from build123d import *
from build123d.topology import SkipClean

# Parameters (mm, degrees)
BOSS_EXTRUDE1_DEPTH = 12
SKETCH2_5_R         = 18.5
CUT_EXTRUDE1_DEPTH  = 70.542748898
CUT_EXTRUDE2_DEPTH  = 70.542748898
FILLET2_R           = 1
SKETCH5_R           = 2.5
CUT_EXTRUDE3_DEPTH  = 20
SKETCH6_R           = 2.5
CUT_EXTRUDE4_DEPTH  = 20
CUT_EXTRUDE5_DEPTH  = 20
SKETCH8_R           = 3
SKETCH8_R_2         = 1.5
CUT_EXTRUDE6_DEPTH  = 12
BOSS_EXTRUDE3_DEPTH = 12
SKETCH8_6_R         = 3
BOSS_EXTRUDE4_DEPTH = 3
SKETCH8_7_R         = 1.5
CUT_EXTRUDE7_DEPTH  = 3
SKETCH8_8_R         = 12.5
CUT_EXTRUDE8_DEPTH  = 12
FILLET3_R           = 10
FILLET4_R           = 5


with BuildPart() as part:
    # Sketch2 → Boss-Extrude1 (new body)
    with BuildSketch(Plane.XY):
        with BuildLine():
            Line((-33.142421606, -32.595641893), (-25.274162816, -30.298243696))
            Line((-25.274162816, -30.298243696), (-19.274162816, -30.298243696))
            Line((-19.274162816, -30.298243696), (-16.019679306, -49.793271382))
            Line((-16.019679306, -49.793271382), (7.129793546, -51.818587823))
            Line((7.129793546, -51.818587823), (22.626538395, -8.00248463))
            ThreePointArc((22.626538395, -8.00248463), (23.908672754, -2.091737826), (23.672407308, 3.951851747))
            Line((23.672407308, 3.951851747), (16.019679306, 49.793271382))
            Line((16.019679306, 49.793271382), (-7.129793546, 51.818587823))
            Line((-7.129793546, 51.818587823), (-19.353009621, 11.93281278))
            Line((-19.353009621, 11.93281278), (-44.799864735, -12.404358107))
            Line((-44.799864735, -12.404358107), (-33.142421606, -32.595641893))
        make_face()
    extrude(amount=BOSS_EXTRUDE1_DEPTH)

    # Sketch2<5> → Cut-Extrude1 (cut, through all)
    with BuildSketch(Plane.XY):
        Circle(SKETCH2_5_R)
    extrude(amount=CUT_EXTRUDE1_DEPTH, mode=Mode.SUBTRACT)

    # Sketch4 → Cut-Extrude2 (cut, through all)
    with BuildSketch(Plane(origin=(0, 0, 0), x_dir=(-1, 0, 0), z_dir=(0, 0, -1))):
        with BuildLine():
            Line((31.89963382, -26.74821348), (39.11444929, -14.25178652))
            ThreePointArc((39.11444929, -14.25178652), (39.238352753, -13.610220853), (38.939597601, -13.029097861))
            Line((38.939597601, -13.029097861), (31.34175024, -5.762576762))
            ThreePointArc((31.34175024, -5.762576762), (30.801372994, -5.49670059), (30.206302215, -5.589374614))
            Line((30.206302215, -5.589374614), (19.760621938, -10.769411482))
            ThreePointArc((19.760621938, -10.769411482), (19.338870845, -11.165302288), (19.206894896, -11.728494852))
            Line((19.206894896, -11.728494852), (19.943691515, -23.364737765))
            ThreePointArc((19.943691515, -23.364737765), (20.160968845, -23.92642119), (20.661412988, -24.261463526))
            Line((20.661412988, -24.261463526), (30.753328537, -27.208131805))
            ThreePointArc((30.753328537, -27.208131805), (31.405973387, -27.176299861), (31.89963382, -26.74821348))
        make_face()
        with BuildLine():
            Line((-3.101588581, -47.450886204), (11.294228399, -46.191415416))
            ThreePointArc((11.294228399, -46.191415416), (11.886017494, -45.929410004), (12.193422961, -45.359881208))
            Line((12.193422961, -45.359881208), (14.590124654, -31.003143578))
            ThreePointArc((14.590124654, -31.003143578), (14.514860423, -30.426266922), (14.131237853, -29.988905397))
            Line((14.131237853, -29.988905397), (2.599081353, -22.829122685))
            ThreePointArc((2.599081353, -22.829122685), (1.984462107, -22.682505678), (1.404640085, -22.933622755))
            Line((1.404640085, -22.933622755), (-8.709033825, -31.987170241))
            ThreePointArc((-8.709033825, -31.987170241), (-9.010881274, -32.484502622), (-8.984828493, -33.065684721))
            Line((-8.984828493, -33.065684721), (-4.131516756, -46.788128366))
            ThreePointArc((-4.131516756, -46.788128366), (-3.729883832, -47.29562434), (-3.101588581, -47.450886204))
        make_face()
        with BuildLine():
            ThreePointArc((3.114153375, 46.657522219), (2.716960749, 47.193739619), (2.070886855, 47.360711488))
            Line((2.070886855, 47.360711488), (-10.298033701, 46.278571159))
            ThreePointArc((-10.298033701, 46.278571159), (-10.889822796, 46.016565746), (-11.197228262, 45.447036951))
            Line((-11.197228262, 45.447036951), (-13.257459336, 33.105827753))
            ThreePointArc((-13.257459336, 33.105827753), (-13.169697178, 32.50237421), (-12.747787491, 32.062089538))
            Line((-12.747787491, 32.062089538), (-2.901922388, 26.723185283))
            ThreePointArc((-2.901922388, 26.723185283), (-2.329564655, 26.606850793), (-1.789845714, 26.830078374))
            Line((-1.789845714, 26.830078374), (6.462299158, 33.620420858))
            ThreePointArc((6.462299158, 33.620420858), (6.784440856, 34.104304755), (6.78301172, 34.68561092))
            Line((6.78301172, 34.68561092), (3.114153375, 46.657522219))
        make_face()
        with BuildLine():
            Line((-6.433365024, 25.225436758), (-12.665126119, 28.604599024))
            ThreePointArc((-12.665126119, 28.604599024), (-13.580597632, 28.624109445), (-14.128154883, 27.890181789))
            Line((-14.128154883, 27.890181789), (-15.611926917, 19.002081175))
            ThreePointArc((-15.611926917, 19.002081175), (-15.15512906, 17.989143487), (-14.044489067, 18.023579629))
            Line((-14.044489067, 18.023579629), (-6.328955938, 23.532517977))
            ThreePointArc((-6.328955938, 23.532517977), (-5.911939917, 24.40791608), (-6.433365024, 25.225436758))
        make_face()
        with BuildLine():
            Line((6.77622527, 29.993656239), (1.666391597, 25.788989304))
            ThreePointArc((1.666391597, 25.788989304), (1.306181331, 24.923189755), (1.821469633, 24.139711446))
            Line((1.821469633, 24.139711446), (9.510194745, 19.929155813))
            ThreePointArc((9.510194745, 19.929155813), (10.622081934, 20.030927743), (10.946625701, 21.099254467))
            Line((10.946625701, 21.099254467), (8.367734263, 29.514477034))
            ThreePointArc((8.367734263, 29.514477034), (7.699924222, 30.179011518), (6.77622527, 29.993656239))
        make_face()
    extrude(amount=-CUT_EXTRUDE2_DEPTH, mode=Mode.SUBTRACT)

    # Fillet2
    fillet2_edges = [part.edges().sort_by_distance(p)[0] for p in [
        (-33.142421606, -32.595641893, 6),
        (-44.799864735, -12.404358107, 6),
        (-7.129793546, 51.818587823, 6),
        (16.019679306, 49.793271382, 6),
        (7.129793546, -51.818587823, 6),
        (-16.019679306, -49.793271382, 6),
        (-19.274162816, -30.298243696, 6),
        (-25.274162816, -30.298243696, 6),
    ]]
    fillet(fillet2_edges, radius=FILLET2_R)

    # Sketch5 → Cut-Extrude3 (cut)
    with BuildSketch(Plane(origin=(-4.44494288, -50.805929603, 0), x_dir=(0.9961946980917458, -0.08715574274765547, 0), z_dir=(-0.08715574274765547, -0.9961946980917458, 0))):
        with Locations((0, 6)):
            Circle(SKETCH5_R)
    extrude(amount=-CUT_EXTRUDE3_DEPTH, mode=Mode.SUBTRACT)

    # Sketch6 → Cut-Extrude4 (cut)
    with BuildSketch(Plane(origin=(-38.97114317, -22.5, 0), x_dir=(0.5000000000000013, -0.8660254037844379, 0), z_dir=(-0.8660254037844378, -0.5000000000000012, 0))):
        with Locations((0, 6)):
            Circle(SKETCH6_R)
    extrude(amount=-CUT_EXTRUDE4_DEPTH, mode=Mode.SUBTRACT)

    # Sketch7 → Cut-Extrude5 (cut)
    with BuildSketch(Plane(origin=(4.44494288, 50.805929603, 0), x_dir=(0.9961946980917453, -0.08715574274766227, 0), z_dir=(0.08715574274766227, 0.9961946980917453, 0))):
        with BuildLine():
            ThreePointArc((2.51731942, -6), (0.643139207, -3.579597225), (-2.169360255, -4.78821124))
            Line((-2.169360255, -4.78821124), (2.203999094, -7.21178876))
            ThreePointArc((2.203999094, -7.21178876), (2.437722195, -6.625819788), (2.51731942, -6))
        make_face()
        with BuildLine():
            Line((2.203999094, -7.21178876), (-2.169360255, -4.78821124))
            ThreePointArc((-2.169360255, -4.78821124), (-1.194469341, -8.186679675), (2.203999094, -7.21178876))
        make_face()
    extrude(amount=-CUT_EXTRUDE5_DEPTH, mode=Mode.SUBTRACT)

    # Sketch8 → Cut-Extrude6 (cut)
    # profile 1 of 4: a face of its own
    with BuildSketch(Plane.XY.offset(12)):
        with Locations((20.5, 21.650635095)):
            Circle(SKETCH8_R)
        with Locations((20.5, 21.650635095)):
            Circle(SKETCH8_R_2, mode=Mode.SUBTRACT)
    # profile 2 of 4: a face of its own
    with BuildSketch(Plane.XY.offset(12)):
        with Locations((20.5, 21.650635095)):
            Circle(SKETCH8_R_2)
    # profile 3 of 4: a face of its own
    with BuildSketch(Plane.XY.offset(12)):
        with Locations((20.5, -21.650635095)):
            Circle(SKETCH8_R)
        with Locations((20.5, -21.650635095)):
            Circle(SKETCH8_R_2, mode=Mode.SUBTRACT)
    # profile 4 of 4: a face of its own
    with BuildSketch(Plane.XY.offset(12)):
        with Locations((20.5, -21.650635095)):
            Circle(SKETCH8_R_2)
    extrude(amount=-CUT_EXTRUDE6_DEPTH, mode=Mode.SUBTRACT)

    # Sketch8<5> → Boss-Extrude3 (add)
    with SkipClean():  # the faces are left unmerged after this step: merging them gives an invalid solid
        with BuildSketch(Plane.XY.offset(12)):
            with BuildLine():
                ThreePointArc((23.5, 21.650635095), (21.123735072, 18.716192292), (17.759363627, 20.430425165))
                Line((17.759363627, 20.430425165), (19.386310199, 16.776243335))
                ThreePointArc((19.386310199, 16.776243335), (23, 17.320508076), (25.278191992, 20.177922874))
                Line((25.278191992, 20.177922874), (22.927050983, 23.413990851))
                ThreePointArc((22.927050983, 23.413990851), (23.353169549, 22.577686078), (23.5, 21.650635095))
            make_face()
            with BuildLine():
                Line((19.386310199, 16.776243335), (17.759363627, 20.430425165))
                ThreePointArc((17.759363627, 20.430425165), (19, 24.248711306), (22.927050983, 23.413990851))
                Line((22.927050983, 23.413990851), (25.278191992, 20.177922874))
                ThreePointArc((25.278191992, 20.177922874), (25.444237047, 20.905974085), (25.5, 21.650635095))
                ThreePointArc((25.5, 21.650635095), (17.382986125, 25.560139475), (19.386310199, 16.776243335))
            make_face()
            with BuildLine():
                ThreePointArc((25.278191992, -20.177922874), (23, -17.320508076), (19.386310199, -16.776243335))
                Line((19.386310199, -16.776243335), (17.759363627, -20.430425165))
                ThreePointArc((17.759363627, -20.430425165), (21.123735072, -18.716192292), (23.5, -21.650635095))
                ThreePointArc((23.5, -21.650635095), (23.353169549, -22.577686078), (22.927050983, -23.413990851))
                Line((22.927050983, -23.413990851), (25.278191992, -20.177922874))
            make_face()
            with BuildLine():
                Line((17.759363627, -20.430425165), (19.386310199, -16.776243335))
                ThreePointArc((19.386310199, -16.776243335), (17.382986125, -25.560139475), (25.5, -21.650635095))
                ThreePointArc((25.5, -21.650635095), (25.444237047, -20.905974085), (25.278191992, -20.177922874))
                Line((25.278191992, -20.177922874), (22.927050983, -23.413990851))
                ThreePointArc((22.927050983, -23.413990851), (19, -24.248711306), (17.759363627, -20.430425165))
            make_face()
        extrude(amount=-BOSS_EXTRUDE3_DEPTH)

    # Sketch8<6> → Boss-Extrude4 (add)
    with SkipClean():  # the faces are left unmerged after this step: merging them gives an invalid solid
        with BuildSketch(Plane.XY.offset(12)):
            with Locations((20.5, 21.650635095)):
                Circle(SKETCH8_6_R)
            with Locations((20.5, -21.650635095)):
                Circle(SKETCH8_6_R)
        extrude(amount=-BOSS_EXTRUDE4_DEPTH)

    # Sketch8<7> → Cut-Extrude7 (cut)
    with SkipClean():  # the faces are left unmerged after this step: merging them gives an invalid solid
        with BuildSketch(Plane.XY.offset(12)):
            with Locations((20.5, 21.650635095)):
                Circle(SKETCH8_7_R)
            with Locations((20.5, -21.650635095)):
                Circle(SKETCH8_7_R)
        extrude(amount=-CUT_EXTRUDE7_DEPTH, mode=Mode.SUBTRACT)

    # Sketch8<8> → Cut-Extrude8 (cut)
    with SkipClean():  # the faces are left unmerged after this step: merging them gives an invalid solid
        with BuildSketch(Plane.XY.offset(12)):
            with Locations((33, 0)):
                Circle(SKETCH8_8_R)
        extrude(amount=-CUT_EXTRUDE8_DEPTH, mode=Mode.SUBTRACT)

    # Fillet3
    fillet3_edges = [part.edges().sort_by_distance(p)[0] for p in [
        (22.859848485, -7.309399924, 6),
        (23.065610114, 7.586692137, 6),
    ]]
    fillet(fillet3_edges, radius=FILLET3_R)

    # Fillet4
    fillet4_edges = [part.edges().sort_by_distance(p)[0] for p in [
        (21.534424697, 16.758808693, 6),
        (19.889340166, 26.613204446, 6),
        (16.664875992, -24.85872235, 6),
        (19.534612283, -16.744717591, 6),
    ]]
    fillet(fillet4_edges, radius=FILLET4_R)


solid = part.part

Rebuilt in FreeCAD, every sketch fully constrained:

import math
import FreeCAD as App
import Part
import Sketcher

V = App.Vector
Q = App.Units.Quantity


def edges_at(feature, points):
    """Names of the edges that pass closest to the given points."""
    edges = feature.Shape.Edges
    near = lambda p: min(range(len(edges)), key=lambda i: edges[i].distToShape(Part.Vertex(*p))[0])
    return sorted({f"Edge{near(p) + 1}" for p in points})

doc = App.newDocument("Part")
body = doc.addObject("PartDesign::Body", "Body")

# Sketch on XY plane
sketch1 = doc.addObject("Sketcher::SketchObject", "Sketch")
body.addObject(sketch1)
sketch1.AttachmentSupport = (doc.XY_Plane, [""])
sketch1.MapMode = "FlatFace"
sketch1.addGeometry([
    Part.LineSegment(V(-33, -33, 0), V(-25, -30, 0)),  # 0
    Part.LineSegment(V(-25, -30, 0), V(-19, -30, 0)),  # 1
    Part.LineSegment(V(-19, -30, 0), V(-16, -50, 0)),  # 2
    Part.LineSegment(V(-16, -50, 0), V(7, -52, 0)),  # 3
    Part.LineSegment(V(7, -52, 0), V(23, -8, 0)),  # 4
    Part.ArcOfCircle(Part.Circle(V(0, 0, 0), V(0, 0, 1), 24), math.radians(-19), math.radians(9)),  # 5
    Part.LineSegment(V(24, 4, 0), V(16, 50, 0)),  # 6
    Part.LineSegment(V(16, 50, 0), V(-7, 52, 0)),  # 7
    Part.LineSegment(V(-7, 52, 0), V(-19, 12, 0)),  # 8
    Part.LineSegment(V(-19, 12, 0), V(-45, -12, 0)),  # 9
    Part.LineSegment(V(-45, -12, 0), V(-33, -33, 0)),  # 10
], False)
sketch1.addConstraint([
    Sketcher.Constraint("Coincident", 0, 2, 1, 1),
    Sketcher.Constraint("Coincident", 1, 2, 2, 1),
    Sketcher.Constraint("Coincident", 2, 2, 3, 1),
    Sketcher.Constraint("Coincident", 3, 2, 4, 1),
    Sketcher.Constraint("Tangent", 4, 2, 5, 1),
    Sketcher.Constraint("Tangent", 5, 2, 6, 1),
    Sketcher.Constraint("Coincident", 6, 2, 7, 1),
    Sketcher.Constraint("Coincident", 7, 2, 8, 1),
    Sketcher.Constraint("Coincident", 8, 2, 9, 1),
    Sketcher.Constraint("Coincident", 9, 2, 10, 1),
    Sketcher.Constraint("Coincident", 10, 2, 0, 1),
    Sketcher.Constraint("Horizontal", 1),
    Sketcher.Constraint("Coincident", 5, 3, -1, 1),
    Sketcher.Constraint("Symmetric", 2, 2, 6, 2, -1, 1),
    Sketcher.Constraint("Symmetric", 3, 2, 7, 2, -1, 1),
    Sketcher.Constraint("Parallel", 2, 6),
    Sketcher.Constraint("Equal", 4, 6),
    Sketcher.Constraint("Radius", 5, Q("24 mm")),
    Sketcher.Constraint("DistanceX", 1, 1, 1, 2, Q("6 mm")),
    Sketcher.Constraint("Angle", 3, Q("-5 deg")),
    Sketcher.Constraint("Angle", 10, Q("-60 deg")),
    Sketcher.Constraint("Distance", 0, Q("8.1968 mm")),
    Sketcher.Constraint("Distance", 3, Q("23.2379 mm")),
    Sketcher.Constraint("Distance", 4, Q("46.4758 mm")),
    Sketcher.Constraint("DistanceX", 1, 2, 4, 2, Q("41.900701 mm")),
    Sketcher.Constraint("DistanceX", 9, 2, 0, 2, Q("19.525702 mm")),
    Sketcher.Constraint("DistanceY", 10, 2, 0, 2, Q("2.297398 mm")),
    Sketcher.Constraint("Distance", 8, Q("41.716688 mm")),
    Sketcher.Constraint("DistanceX", 8, 2, -1, 1, Q("19.35301 mm")),
])
pad1 = doc.addObject("PartDesign::Pad", "Pad")
body.addObject(pad1)
pad1.Profile = sketch1
pad1.Length = 12

# Sketch on XY plane
sketch2 = doc.addObject("Sketcher::SketchObject", "Sketch001")
body.addObject(sketch2)
sketch2.AttachmentSupport = (doc.XY_Plane, [""])
sketch2.MapMode = "FlatFace"
sketch2.addGeometry(Part.Circle(V(0, 0, 0), V(0, 0, 1), 18), False)
sketch2.addConstraint([
    Sketcher.Constraint("Coincident", 0, 3, -1, 1),
    Sketcher.Constraint("Diameter", 0, Q("37 mm")),
])
pocket1 = doc.addObject("PartDesign::Pocket", "Pocket")
body.addObject(pocket1)
pocket1.Profile = sketch2
pocket1.Type = "ThroughAll"
pocket1.Reversed = True

# Sketch on XY plane
sketch3 = doc.addObject("Sketcher::SketchObject", "Sketch002")
body.addObject(sketch3)
sketch3.AttachmentSupport = (doc.XY_Plane, [""])
sketch3.MapMode = "FlatFace"
sketch3.addGeometry([
    Part.LineSegment(V(-31.9, -26.7, 0), V(-39.1, -14.3, 0)),  # 0
    Part.ArcOfCircle(Part.Circle(V(-38.2, -13.8, 0), V(0, 0, 1), 1), math.radians(134), math.radians(210)),  # 1
    Part.LineSegment(V(-38.9, -13, 0), V(-31.3, -5.8, 0)),  # 2
    Part.ArcOfCircle(Part.Circle(V(-30.7, -6.5, 0), V(0, 0, 1), 1), math.radians(64), math.radians(134)),  # 3
    Part.LineSegment(V(-30.2, -5.6, 0), V(-19.8, -10.8, 0)),  # 4
    Part.ArcOfCircle(Part.Circle(V(-20.2, -11.7, 0), V(0, 0, 1), 1), math.radians(-4), math.radians(64)),  # 5
    Part.LineSegment(V(-19.2, -11.7, 0), V(-19.9, -23.4, 0)),  # 6
    Part.ArcOfCircle(Part.Circle(V(-20.9, -23.3, 0), V(0, 0, 1), 1), math.radians(-74), math.radians(-4)),  # 7
    Part.LineSegment(V(-20.7, -24.3, 0), V(-30.8, -27.2, 0)),  # 8
    Part.ArcOfCircle(Part.Circle(V(-31, -26.2, 0), V(0, 0, 1), 1), math.radians(-150), math.radians(-74)),  # 9
    Part.LineSegment(V(3.1, -47.5, 0), V(-11.3, -46.2, 0)),  # 10
    Part.ArcOfCircle(Part.Circle(V(-11.2, -45.2, 0), V(0, 0, 1), 1), math.radians(-171), math.radians(-95)),  # 11
    Part.LineSegment(V(-12.2, -45.4, 0), V(-14.6, -31, 0)),  # 12
    Part.ArcOfCircle(Part.Circle(V(-13.6, -30.8, 0), V(0, 0, 1), 1), math.radians(122), math.radians(189)),  # 13
    Part.LineSegment(V(-14.1, -30, 0), V(-2.6, -22.8, 0)),  # 14
    Part.ArcOfCircle(Part.Circle(V(-2.1, -23.7, 0), V(0, 0, 1), 1), math.radians(48), math.radians(122)),  # 15
    Part.LineSegment(V(-1.4, -22.9, 0), V(8.7, -32, 0)),  # 16
    Part.ArcOfCircle(Part.Circle(V(8, -32.7, 0), V(0, 0, 1), 1), math.radians(-19), math.radians(48)),  # 17
    Part.LineSegment(V(9, -33.1, 0), V(4.1, -46.8, 0)),  # 18
    Part.ArcOfCircle(Part.Circle(V(3.2, -46.5, 0), V(0, 0, 1), 1), math.radians(-95), math.radians(-19)),  # 19
    Part.ArcOfCircle(Part.Circle(V(-2.2, 46.4, 0), V(0, 0, 1), 1), math.radians(85), math.radians(163)),  # 20
    Part.LineSegment(V(-2.1, 47.4, 0), V(10.3, 46.3, 0)),  # 21
    Part.ArcOfCircle(Part.Circle(V(10.2, 45.3, 0), V(0, 0, 1), 1), math.radians(9), math.radians(85)),  # 22
    Part.LineSegment(V(11.2, 45.4, 0), V(13.3, 33.1, 0)),  # 23
    Part.ArcOfCircle(Part.Circle(V(12.3, 32.9, 0), V(0, 0, 1), 1), math.radians(-62), math.radians(9)),  # 24
    Part.LineSegment(V(12.7, 32.1, 0), V(2.9, 26.7, 0)),  # 25
    Part.ArcOfCircle(Part.Circle(V(2.4, 27.6, 0), V(0, 0, 1), 1), math.radians(-129), math.radians(-62)),  # 26
    Part.LineSegment(V(1.8, 26.8, 0), V(-6.5, 33.6, 0)),  # 27
    Part.ArcOfCircle(Part.Circle(V(-5.8, 34.4, 0), V(0, 0, 1), 1), math.radians(163), math.radians(231)),  # 28
    Part.LineSegment(V(-6.8, 34.7, 0), V(-3.1, 46.7, 0)),  # 29
    Part.LineSegment(V(6.4, 25.2, 0), V(12.7, 28.6, 0)),  # 30
    Part.ArcOfCircle(Part.Circle(V(13.1, 27.7, 0), V(0, 0, 1), 1), math.radians(9), math.radians(118)),  # 31
    Part.LineSegment(V(14.1, 27.9, 0), V(15.6, 19, 0)),  # 32
    Part.ArcOfCircle(Part.Circle(V(14.6, 18.8, 0), V(0, 0, 1), 1), math.radians(-126), math.radians(9)),  # 33
    Part.LineSegment(V(14, 18, 0), V(6.3, 23.5, 0)),  # 34
    Part.ArcOfCircle(Part.Circle(V(6.9, 24.3, 0), V(0, 0, 1), 1), math.radians(118), math.radians(234)),  # 35
    Part.LineSegment(V(-6.8, 30, 0), V(-1.7, 25.8, 0)),  # 36
    Part.ArcOfCircle(Part.Circle(V(-2.3, 25, 0), V(0, 0, 1), 1), math.radians(-61), math.radians(51)),  # 37
    Part.LineSegment(V(-1.8, 24.1, 0), V(-9.5, 19.9, 0)),  # 38
    Part.ArcOfCircle(Part.Circle(V(-10, 20.8, 0), V(0, 0, 1), 1), math.radians(163), math.radians(299)),  # 39
    Part.LineSegment(V(-10.9, 21.1, 0), V(-8.4, 29.5, 0)),  # 40
    Part.ArcOfCircle(Part.Circle(V(-7.4, 29.2, 0), V(0, 0, 1), 1), math.radians(51), math.radians(163)),  # 41
], False)
sketch3.addConstraint([
    Sketcher.Constraint("Tangent", 0, 2, 1, 2),
    Sketcher.Constraint("Tangent", 1, 1, 2, 1),
    Sketcher.Constraint("Tangent", 2, 2, 3, 2),
    Sketcher.Constraint("Tangent", 3, 1, 4, 1),
    Sketcher.Constraint("Tangent", 4, 2, 5, 2),
    Sketcher.Constraint("Tangent", 5, 1, 6, 1),
    Sketcher.Constraint("Tangent", 6, 2, 7, 2),
    Sketcher.Constraint("Tangent", 7, 1, 8, 1),
    Sketcher.Constraint("Tangent", 8, 2, 9, 2),
    Sketcher.Constraint("Tangent", 9, 1, 0, 1),
    Sketcher.Constraint("Tangent", 10, 2, 11, 2),
    Sketcher.Constraint("Tangent", 11, 1, 12, 1),
    Sketcher.Constraint("Tangent", 12, 2, 13, 2),
    Sketcher.Constraint("Tangent", 13, 1, 14, 1),
    Sketcher.Constraint("Tangent", 14, 2, 15, 2),
    Sketcher.Constraint("Tangent", 15, 1, 16, 1),
    Sketcher.Constraint("Tangent", 16, 2, 17, 2),
    Sketcher.Constraint("Tangent", 17, 1, 18, 1),
    Sketcher.Constraint("Tangent", 18, 2, 19, 2),
    Sketcher.Constraint("Tangent", 19, 1, 10, 1),
    Sketcher.Constraint("Tangent", 20, 1, 21, 1),
    Sketcher.Constraint("Tangent", 21, 2, 22, 2),
    Sketcher.Constraint("Tangent", 22, 1, 23, 1),
    Sketcher.Constraint("Tangent", 23, 2, 24, 2),
    Sketcher.Constraint("Tangent", 24, 1, 25, 1),
    Sketcher.Constraint("Tangent", 25, 2, 26, 2),
    Sketcher.Constraint("Tangent", 26, 1, 27, 1),
    Sketcher.Constraint("Tangent", 27, 2, 28, 2),
    Sketcher.Constraint("Tangent", 28, 1, 29, 1),
    Sketcher.Constraint("Tangent", 29, 2, 20, 2),
    Sketcher.Constraint("Tangent", 30, 2, 31, 2),
    Sketcher.Constraint("Tangent", 31, 1, 32, 1),
    Sketcher.Constraint("Tangent", 32, 2, 33, 2),
    Sketcher.Constraint("Tangent", 33, 1, 34, 1),
    Sketcher.Constraint("Tangent", 34, 2, 35, 2),
    Sketcher.Constraint("Tangent", 35, 1, 30, 1),
    Sketcher.Constraint("Tangent", 36, 2, 37, 2),
    Sketcher.Constraint("Tangent", 37, 1, 38, 1),
    Sketcher.Constraint("Tangent", 38, 2, 39, 2),
    Sketcher.Constraint("Tangent", 39, 1, 40, 1),
    Sketcher.Constraint("Tangent", 40, 2, 41, 2),
    Sketcher.Constraint("Tangent", 41, 1, 36, 1),
    Sketcher.Constraint("Equal", 1, 3),
    Sketcher.Constraint("Equal", 3, 5),
    Sketcher.Constraint("Equal", 5, 7),
    Sketcher.Constraint("Equal", 7, 9),
    Sketcher.Constraint("Equal", 9, 11),
    Sketcher.Constraint("Equal", 11, 13),
    Sketcher.Constraint("Equal", 13, 15),
    Sketcher.Constraint("Equal", 15, 17),
    Sketcher.Constraint("Equal", 17, 19),
    Sketcher.Constraint("Equal", 19, 20),
    Sketcher.Constraint("Equal", 20, 22),
    Sketcher.Constraint("Equal", 22, 24),
    Sketcher.Constraint("Equal", 24, 26),
    Sketcher.Constraint("Equal", 26, 28),
    Sketcher.Constraint("Equal", 28, 31),
    Sketcher.Constraint("Equal", 31, 33),
    Sketcher.Constraint("Equal", 33, 35),
    Sketcher.Constraint("Equal", 35, 37),
    Sketcher.Constraint("Equal", 37, 39),
    Sketcher.Constraint("Equal", 39, 41),
    Sketcher.Constraint("Parallel", 10, 21),
    Sketcher.Constraint("Parallel", 12, 23),
    Sketcher.Constraint("Parallel", 25, 30),
    Sketcher.Constraint("Parallel", 23, 32),
    Sketcher.Constraint("Parallel", 27, 36),
    Sketcher.Constraint("Parallel", 29, 40),
    Sketcher.Constraint("Equal", 4, 6),
    Sketcher.Constraint("Equal", 2, 8),
    Sketcher.Constraint("Equal", 14, 16),
    Sketcher.Constraint("Equal", 12, 18),
    Sketcher.Constraint("Radius", 1, Q("1 mm")),
    Sketcher.Constraint("Angle", 0, Q("120 deg")),
    Sketcher.Constraint("Angle", 10, Q("175 deg")),
    Sketcher.Constraint("Distance", 32, Q("9.011099 mm")),
    Sketcher.Constraint("DistanceY", 15, 3, -1, 1, Q("23.6787 mm")),
    Sketcher.Constraint("DistanceX", 28, 3, -1, 1, Q("5.826901 mm")),
    Sketcher.Constraint("DistanceX", 27, 2, -1, 1, Q("6.462299 mm")),
    Sketcher.Constraint("DistanceY", -1, 1, 30, 2, Q("28.604599 mm")),
    Sketcher.Constraint("Distance", 0, Q("14.429631 mm")),
    Sketcher.Constraint("Distance", 25, Q("11.200221 mm")),
    Sketcher.Constraint("Distance", 27, Q("10.686751 mm")),
    Sketcher.Constraint("Distance", 29, Q("12.521469 mm")),
    Sketcher.Constraint("DistanceX", 9, 3, -1, 1, Q("31.033608 mm")),
    Sketcher.Constraint("DistanceY", 11, 3, -1, 1, Q("45.195221 mm")),
    Sketcher.Constraint("DistanceY", 19, 3, -1, 1, Q("46.454692 mm")),
    Sketcher.Constraint("DistanceX", -1, 1, 24, 3, Q("12.271109 mm")),
    Sketcher.Constraint("DistanceY", -1, 1, 33, 3, Q("18.837421 mm")),
    Sketcher.Constraint("DistanceY", -1, 1, 35, 3, Q("24.346359 mm")),
    Sketcher.Constraint("DistanceX", 37, 3, -1, 1, Q("2.30179 mm")),
    Sketcher.Constraint("DistanceY", -1, 1, 39, 3, Q("20.806249 mm")),
    Sketcher.Constraint("DistanceY", -1, 1, 41, 3, Q("29.221472 mm")),
    Sketcher.Constraint("DistanceX", 2, 2, -1, 1, Q("31.34175 mm")),
    Sketcher.Constraint("DistanceX", 4, 2, -1, 1, Q("19.760622 mm")),
    Sketcher.Constraint("DistanceY", 4, 2, -1, 1, Q("10.769411 mm")),
    Sketcher.Constraint("DistanceX", 6, 2, -1, 1, Q("19.943692 mm")),
    Sketcher.Constraint("DistanceX", 8, 2, -1, 1, Q("30.753329 mm")),
    Sketcher.Constraint("DistanceX", 10, 2, -1, 1, Q("11.294228 mm")),
    Sketcher.Constraint("DistanceX", 14, 2, -1, 1, Q("2.599081 mm")),
    Sketcher.Constraint("DistanceX", 15, 1, -1, 1, Q("1.40464 mm")),
    Sketcher.Constraint("DistanceY", -1, 1, 20, 1, Q("47.360711 mm")),
    Sketcher.Constraint("DistanceY", -1, 1, 21, 2, Q("46.278571 mm")),
    Sketcher.Constraint("DistanceX", -1, 1, 33, 1, Q("14.044489 mm")),
    Sketcher.Constraint("DistanceY", -1, 1, 36, 2, Q("25.788989 mm")),
])
pocket2 = doc.addObject("PartDesign::Pocket", "Pocket001")
body.addObject(pocket2)
pocket2.Profile = sketch3
pocket2.Type = "ThroughAll"
pocket2.Reversed = True
doc.recompute()

fillet = doc.addObject("PartDesign::Fillet", "Fillet")
body.addObject(fillet)
fillet.Base = (pocket2, edges_at(pocket2, [
    (-33.142, -32.596, 6),
    (-44.8, -12.404, 6),
    (-7.13, 51.819, 6),
    (16.02, 49.793, 6),
    (7.13, -51.819, 6),
    (-16.02, -49.793, 6),
    (-19.274, -30.298, 6),
    (-25.274, -30.298, 6),
]))
fillet.Radius = 1

# Sketch on an angled plane
sketch4 = doc.addObject("Sketcher::SketchObject", "Sketch003")
body.addObject(sketch4)
sketch4.Placement = App.Placement(V(-4.444943, -50.80593, 0), App.Rotation(V(0.996194698, -0.087155743, 0), V(0, 0, 1), V(-0.087155743, -0.996194698, 0), "ZXY"))
sketch4.addGeometry(Part.Circle(V(0, 6, 0), V(0, 0, 1), 2.5), False)
sketch4.addConstraint([
    Sketcher.Constraint("PointOnObject", 0, 3, -2),
    Sketcher.Constraint("Diameter", 0, Q("5 mm")),
    Sketcher.Constraint("DistanceY", -1, 1, 0, 3, Q("6 mm")),
])
pocket3 = doc.addObject("PartDesign::Pocket", "Pocket002")
body.addObject(pocket3)
pocket3.Profile = sketch4
pocket3.Length = 20

# Sketch on an angled plane
sketch5 = doc.addObject("Sketcher::SketchObject", "Sketch004")
body.addObject(sketch5)
sketch5.Placement = App.Placement(V(-38.971143, -22.5, 0), App.Rotation(V(0.5, -0.866025404, 0), V(0, 0, 1), V(-0.866025404, -0.5, 0), "ZXY"))
sketch5.addGeometry(Part.Circle(V(0, 6, 0), V(0, 0, 1), 2.5), False)
sketch5.addConstraint([
    Sketcher.Constraint("PointOnObject", 0, 3, -2),
    Sketcher.Constraint("Diameter", 0, Q("5 mm")),
    Sketcher.Constraint("DistanceY", -1, 1, 0, 3, Q("6 mm")),
])
pocket4 = doc.addObject("PartDesign::Pocket", "Pocket003")
body.addObject(pocket4)
pocket4.Profile = sketch5
pocket4.Length = 20

# Sketch on an angled plane
sketch6 = doc.addObject("Sketcher::SketchObject", "Sketch005")
body.addObject(sketch6)
sketch6.Placement = App.Placement(V(4.444943, 50.80593, 0), App.Rotation(V(0.996194698, -0.087155743, 0), V(0, 0, -1), V(0.087155743, 0.996194698, 0), "ZXY"))
sketch6.addGeometry([
    Part.ArcOfCircle(Part.Circle(V(0, -6, 0), V(0, 0, 1), 2.5), math.radians(0), math.radians(151)),
    Part.ArcOfCircle(Part.Circle(V(0, -6, 0), V(0, 0, 1), 2.5), math.radians(151), math.radians(331)),
    Part.ArcOfCircle(Part.Circle(V(0, -6, 0), V(0, 0, 1), 2.5), math.radians(-29), math.radians(0)),
], False)
sketch6.addConstraint([
    Sketcher.Constraint("Tangent", 0, 2, 1, 1),
    Sketcher.Constraint("Tangent", 1, 2, 2, 1),
    Sketcher.Constraint("Tangent", 2, 2, 0, 1),
    Sketcher.Constraint("Horizontal", 1, 3, 2, 2),
    Sketcher.Constraint("Radius", 0, Q("2.5 mm")),
    Sketcher.Constraint("DistanceY", 0, 3, -1, 1, Q("6 mm")),
    Sketcher.Constraint("DistanceX", -1, 1, 1, 2, Q("2.203999 mm")),
    Sketcher.Constraint("DistanceX", -1, 1, 0, 3, Q("0.017319 mm")),
    Sketcher.Constraint("DistanceX", 0, 2, -1, 1, Q("2.16936 mm")),
])
pocket5 = doc.addObject("PartDesign::Pocket", "Pocket004")
body.addObject(pocket5)
pocket5.Profile = sketch6
pocket5.Length = 20

# Sketch on XY plane
sketch7 = doc.addObject("Sketcher::SketchObject", "Sketch006")
body.addObject(sketch7)
sketch7.AttachmentSupport = (doc.XY_Plane, [""])
sketch7.MapMode = "FlatFace"
sketch7.AttachmentOffset = App.Placement(V(0, 0, 12), App.Rotation())
sketch7.addGeometry([
    Part.Circle(V(20.5, 21.7, 0), V(0, 0, 1), 3),
    Part.Circle(V(20.5, -21.7, 0), V(0, 0, 1), 3),
], False)
sketch7.addConstraint([
    Sketcher.Constraint("Equal", 0, 1),
    Sketcher.Constraint("Symmetric", 0, 3, 1, 3, -1),
    Sketcher.Constraint("Diameter", 0, Q("6 mm")),
    Sketcher.Constraint("DistanceX", -1, 1, 0, 3, Q("20.5 mm")),
    Sketcher.Constraint("DistanceY", 1, 3, 0, 3, Q("43.30127 mm")),
])
pocket6 = doc.addObject("PartDesign::Pocket", "Pocket005")
body.addObject(pocket6)
pocket6.Profile = sketch7
pocket6.Length = 12

# Sketch on XY plane
sketch8 = doc.addObject("Sketcher::SketchObject", "Sketch007")
body.addObject(sketch8)
sketch8.AttachmentSupport = (doc.XY_Plane, [""])
sketch8.MapMode = "FlatFace"
sketch8.AttachmentOffset = App.Placement(V(0, 0, 12), App.Rotation())
sketch8.addGeometry([
    Part.ArcOfCircle(Part.Circle(V(20.5, 21.7, 0), V(0, 0, 1), 3), math.radians(-156), math.radians(0)),  # 0
    Part.LineSegment(V(17.8, 20.4, 0), V(19.4, 16.8, 0)),  # 1
    Part.ArcOfCircle(Part.Circle(V(20.5, 21.7, 0), V(0, 0, 1), 5), math.radians(-103), math.radians(-17)),  # 2
    Part.LineSegment(V(25.3, 20.2, 0), V(22.9, 23.4, 0)),  # 3
    Part.ArcOfCircle(Part.Circle(V(20.5, 21.7, 0), V(0, 0, 1), 3), math.radians(0), math.radians(36)),  # 4
    Part.LineSegment(V(19.4, 16.8, 0), V(17.8, 20.4, 0)),  # 5
    Part.ArcOfCircle(Part.Circle(V(20.5, 21.7, 0), V(0, 0, 1), 3), math.radians(36), math.radians(204)),  # 6
    Part.LineSegment(V(22.9, 23.4, 0), V(25.3, 20.2, 0)),  # 7
    Part.ArcOfCircle(Part.Circle(V(20.5, 21.7, 0), V(0, 0, 1), 5), math.radians(-17.13), math.radians(0)),  # 8
    Part.ArcOfCircle(Part.Circle(V(20.5, 21.7, 0), V(0, 0, 1), 5), math.radians(0), math.radians(257)),  # 9
    Part.ArcOfCircle(Part.Circle(V(20.5, -21.7, 0), V(0, 0, 1), 5), math.radians(17), math.radians(103)),  # 10
    Part.LineSegment(V(19.4, -16.8, 0), V(17.8, -20.4, 0)),  # 11
    Part.ArcOfCircle(Part.Circle(V(20.5, -21.7, 0), V(0, 0, 1), 3), math.radians(0), math.radians(156)),  # 12
    Part.ArcOfCircle(Part.Circle(V(20.5, -21.7, 0), V(0, 0, 1), 3), math.radians(-36), math.radians(0)),  # 13
    Part.LineSegment(V(22.9, -23.4, 0), V(25.3, -20.2, 0)),  # 14
    Part.LineSegment(V(17.8, -20.4, 0), V(19.4, -16.8, 0)),  # 15
    Part.ArcOfCircle(Part.Circle(V(20.5, -21.7, 0), V(0, 0, 1), 5), math.radians(103), math.radians(360)),  # 16
    Part.ArcOfCircle(Part.Circle(V(20.5, -21.7, 0), V(0, 0, 1), 5), math.radians(0), math.radians(17.13)),  # 17
    Part.LineSegment(V(25.3, -20.2, 0), V(22.9, -23.4, 0)),  # 18
    Part.ArcOfCircle(Part.Circle(V(20.5, -21.7, 0), V(0, 0, 1), 3), math.radians(156), math.radians(324)),  # 19
], False)
sketch8.addConstraint([
    Sketcher.Constraint("Tangent", 0, 1, 1, 1),
    Sketcher.Constraint("Coincident", 1, 2, 2, 1),
    Sketcher.Constraint("Coincident", 2, 2, 3, 1),
    Sketcher.Constraint("Tangent", 3, 2, 4, 2),
    Sketcher.Constraint("Tangent", 4, 1, 0, 2),
    Sketcher.Constraint("Tangent", 5, 2, 6, 2),
    Sketcher.Constraint("Tangent", 6, 1, 7, 1),
    Sketcher.Constraint("Coincident", 7, 2, 8, 1),
    Sketcher.Constraint("Tangent", 8, 2, 9, 1),
    Sketcher.Constraint("Coincident", 9, 2, 5, 1),
    Sketcher.Constraint("Coincident", 10, 2, 11, 1),
    Sketcher.Constraint("Tangent", 11, 2, 12, 2),
    Sketcher.Constraint("Tangent", 12, 1, 13, 2),
    Sketcher.Constraint("Tangent", 13, 1, 14, 1),
    Sketcher.Constraint("Coincident", 14, 2, 10, 1),
    Sketcher.Constraint("Coincident", 15, 2, 16, 1),
    Sketcher.Constraint("Tangent", 16, 2, 17, 1),
    Sketcher.Constraint("Coincident", 17, 2, 18, 1),
    Sketcher.Constraint("Tangent", 18, 2, 19, 2),
    Sketcher.Constraint("Tangent", 19, 1, 15, 1),
    Sketcher.Constraint("Coincident", 2, 3, 0, 3),
    Sketcher.Constraint("Coincident", 6, 3, 0, 3),
    Sketcher.Constraint("Coincident", 8, 3, 0, 3),
    Sketcher.Constraint("Coincident", 12, 3, 10, 3),
    Sketcher.Constraint("Coincident", 16, 3, 10, 3),
    Sketcher.Constraint("Coincident", 19, 3, 10, 3),
    Sketcher.Constraint("Coincident", 5, 2, 0, 1),
    Sketcher.Constraint("Coincident", 6, 1, 3, 2),
    Sketcher.Constraint("Coincident", 15, 2, 10, 2),
    Sketcher.Constraint("Coincident", 17, 2, 14, 2),
    Sketcher.Constraint("Coincident", 18, 2, 13, 1),
    Sketcher.Constraint("Equal", 2, 8),
    Sketcher.Constraint("Equal", 8, 9),
    Sketcher.Constraint("Equal", 9, 10),
    Sketcher.Constraint("Equal", 6, 12),
    Sketcher.Constraint("Symmetric", 0, 3, 10, 3, -1),
    Sketcher.Constraint("Horizontal", 9, 3, 4, 1),
    Sketcher.Constraint("Horizontal", 4, 1, 8, 2),
    Sketcher.Constraint("Horizontal", 19, 3, 12, 1),
    Sketcher.Constraint("Horizontal", 12, 1, 16, 2),
    Sketcher.Constraint("Vertical", 9, 2, 10, 2),
    Sketcher.Constraint("Vertical", 6, 1, 13, 1),
    Sketcher.Constraint("Radius", 0, Q("3 mm")),
    Sketcher.Constraint("Radius", 2, Q("5 mm")),
    Sketcher.Constraint("Angle", 1, Q("-66 deg")),
    Sketcher.Constraint("Angle", 3, Q("126 deg")),
    Sketcher.Constraint("DistanceX", -1, 1, 0, 3, Q("20.5 mm")),
    Sketcher.Constraint("DistanceY", -1, 1, 3, 2, Q("23.413991 mm")),
])
pad2 = doc.addObject("PartDesign::Pad", "Pad001")
body.addObject(pad2)
pad2.Profile = sketch8
pad2.Length = 12
pad2.Reversed = True

# Sketch on XY plane
sketch9 = doc.addObject("Sketcher::SketchObject", "Sketch008")
body.addObject(sketch9)
sketch9.AttachmentSupport = (doc.XY_Plane, [""])
sketch9.MapMode = "FlatFace"
sketch9.AttachmentOffset = App.Placement(V(0, 0, 12), App.Rotation())
sketch9.addGeometry([
    Part.Circle(V(20.5, 21.7, 0), V(0, 0, 1), 3),
    Part.Circle(V(20.5, -21.7, 0), V(0, 0, 1), 3),
], False)
sketch9.addConstraint([
    Sketcher.Constraint("Equal", 0, 1),
    Sketcher.Constraint("Symmetric", 0, 3, 1, 3, -1),
    Sketcher.Constraint("Diameter", 0, Q("6 mm")),
    Sketcher.Constraint("DistanceX", -1, 1, 0, 3, Q("20.5 mm")),
    Sketcher.Constraint("DistanceY", 1, 3, 0, 3, Q("43.30127 mm")),
])
pad3 = doc.addObject("PartDesign::Pad", "Pad002")
body.addObject(pad3)
pad3.Profile = sketch9
pad3.Length = 3
pad3.Reversed = True

# Sketch on XY plane
sketch10 = doc.addObject("Sketcher::SketchObject", "Sketch009")
body.addObject(sketch10)
sketch10.AttachmentSupport = (doc.XY_Plane, [""])
sketch10.MapMode = "FlatFace"
sketch10.AttachmentOffset = App.Placement(V(0, 0, 12), App.Rotation())
sketch10.addGeometry([
    Part.Circle(V(20.5, 21.7, 0), V(0, 0, 1), 1.5),
    Part.Circle(V(20.5, -21.7, 0), V(0, 0, 1), 1.5),
], False)
sketch10.addConstraint([
    Sketcher.Constraint("Equal", 0, 1),
    Sketcher.Constraint("Symmetric", 0, 3, 1, 3, -1),
    Sketcher.Constraint("Diameter", 0, Q("3 mm")),
    Sketcher.Constraint("DistanceX", -1, 1, 0, 3, Q("20.5 mm")),
    Sketcher.Constraint("DistanceY", 1, 3, 0, 3, Q("43.30127 mm")),
])
pocket7 = doc.addObject("PartDesign::Pocket", "Pocket006")
body.addObject(pocket7)
pocket7.Profile = sketch10
pocket7.Length = 3

# Sketch on XY plane
sketch11 = doc.addObject("Sketcher::SketchObject", "Sketch010")
body.addObject(sketch11)
sketch11.AttachmentSupport = (doc.XY_Plane, [""])
sketch11.MapMode = "FlatFace"
sketch11.AttachmentOffset = App.Placement(V(0, 0, 12), App.Rotation())
sketch11.addGeometry(Part.Circle(V(33, 0, 0), V(0, 0, 1), 12), False)
sketch11.addConstraint([
    Sketcher.Constraint("PointOnObject", 0, 3, -1),
    Sketcher.Constraint("Diameter", 0, Q("25 mm")),
    Sketcher.Constraint("DistanceX", -1, 1, 0, 3, Q("33 mm")),
])
pocket8 = doc.addObject("PartDesign::Pocket", "Pocket007")
body.addObject(pocket8)
pocket8.Profile = sketch11
pocket8.Length = 12
doc.recompute()

fillet2 = doc.addObject("PartDesign::Fillet", "Fillet001")
body.addObject(fillet2)
fillet2.Base = (pocket8, edges_at(pocket8, [(22.86, -7.309, 6), (23.066, 7.587, 6)]))
fillet2.Radius = 10
doc.recompute()

fillet3 = doc.addObject("PartDesign::Fillet", "Fillet002")
body.addObject(fillet3)
fillet3.Base = (fillet2, edges_at(fillet2, [
    (21.534, 16.759, 6),
    (19.889, 26.613, 6),
    (16.665, -24.859, 6),
    (19.535, -16.745, 6),
]))
fillet3.Radius = 5

doc.recompute()
